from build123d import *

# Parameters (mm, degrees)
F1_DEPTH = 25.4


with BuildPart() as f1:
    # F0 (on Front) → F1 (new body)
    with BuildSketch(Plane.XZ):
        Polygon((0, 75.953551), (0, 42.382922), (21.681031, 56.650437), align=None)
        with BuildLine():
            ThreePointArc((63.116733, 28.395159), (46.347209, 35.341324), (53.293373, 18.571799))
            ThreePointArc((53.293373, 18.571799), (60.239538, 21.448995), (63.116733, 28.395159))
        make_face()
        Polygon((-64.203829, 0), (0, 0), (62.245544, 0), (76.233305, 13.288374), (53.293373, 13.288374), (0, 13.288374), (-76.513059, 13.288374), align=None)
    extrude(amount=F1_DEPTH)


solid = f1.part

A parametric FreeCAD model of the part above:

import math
import FreeCAD as App
import Part
import Sketcher
from FreeCAD import Vector
Q = App.Units.Quantity


def add_polygon(sketch, points):
    """Adds a closed chain of lines whose ends are joined by coincident constraints."""
    first, n = sketch.GeometryCount, len(points)
    for a, b in zip(points, points[1:] + points[:1]):
        sketch.addGeometry(Part.LineSegment(App.Vector(*a, 0), App.Vector(*b, 0)), False)
    for i in range(n):
        sketch.addConstraint(Sketcher.Constraint("Coincident", first + i, 2, first + (i + 1) % n, 1))

doc = App.newDocument("Part")
body = doc.addObject("PartDesign::Body", "Body")
body.AllowCompound = True

sketch1 = body.newObject("Sketcher::SketchObject", "Sketch")
sketch1.AttachmentSupport = (doc.getObject("XZ_Plane"), [""])
sketch1.MapMode = "FlatFace"
add_polygon(sketch1, [(0, 75.953551), (0, 42.382922), (21.681031, 56.650437)])
sketch1.addGeometry(Part.ArcOfCircle(Part.Circle(Vector(53.293373, 28.395159, 0), Vector(0, 0, 1), 9.82336), math.radians(0), math.radians(270)), False)
sketch1.addGeometry(Part.ArcOfCircle(Part.Circle(Vector(53.293373, 28.395159, 0), Vector(0, 0, 1), 9.82336), math.radians(-90.000001), math.radians(0.000001)), False)
add_polygon(sketch1, [(-64.203829, 0), (62.245544, 0), (76.233305, 13.288374), (-76.513059, 13.288374)])
sketch1.addConstraint([
    Sketcher.Constraint("Tangent", 3, 1, 4, 2),
    Sketcher.Constraint("Coincident", 4, 1, 3, 2),
    Sketcher.Constraint("Vertical", 0),
    Sketcher.Constraint("Horizontal", 5),
    Sketcher.Constraint("Horizontal", 7),
    Sketcher.Constraint("PointOnObject", 0, 2, -2),
    Sketcher.Constraint("PointOnObject", 5, 2, -1),
    Sketcher.Constraint("Horizontal", 4, 3, 3, 1),
    Sketcher.Constraint("Vertical", 3, 3, 4, 1),
    Sketcher.Constraint("Radius", 3, Q("9.82336 mm")),
    Sketcher.Constraint("DistanceY", 0, 2, 0, 1, Q("33.570629 mm")),
    Sketcher.Constraint("DistanceY", -1, 1, 4, 1, Q("18.571799 mm")),
    Sketcher.Constraint("DistanceX", 8, 2, 4, 1, Q("117.497202 mm")),
    Sketcher.Constraint("Distance", 6, Q("19.293479 mm")),
    Sketcher.Constraint("DistanceX", 5, 1, 5, 2, Q("126.449373 mm")),
    Sketcher.Constraint("DistanceX", 7, 2, 7, 1, Q("152.746364 mm")),
    Sketcher.Constraint("DistanceX", -1, 1, 1, 2, Q("21.681031 mm")),
    Sketcher.Constraint("DistanceY", -1, 1, 2, 2, Q("75.953551 mm")),
    Sketcher.Constraint("DistanceX", 7, 2, -1, 1, Q("76.513059 mm")),
    Sketcher.Constraint("DistanceX", 8, 2, -1, 1, Q("64.203829 mm")),
    Sketcher.Constraint("DistanceY", 4, 3, 1, 2, Q("28.255278 mm")),
])
pad1 = body.newObject("PartDesign::Pad", "Pad")
pad1.Profile = sketch1
pad1.Length = Q("1 in")

doc.recompute()
